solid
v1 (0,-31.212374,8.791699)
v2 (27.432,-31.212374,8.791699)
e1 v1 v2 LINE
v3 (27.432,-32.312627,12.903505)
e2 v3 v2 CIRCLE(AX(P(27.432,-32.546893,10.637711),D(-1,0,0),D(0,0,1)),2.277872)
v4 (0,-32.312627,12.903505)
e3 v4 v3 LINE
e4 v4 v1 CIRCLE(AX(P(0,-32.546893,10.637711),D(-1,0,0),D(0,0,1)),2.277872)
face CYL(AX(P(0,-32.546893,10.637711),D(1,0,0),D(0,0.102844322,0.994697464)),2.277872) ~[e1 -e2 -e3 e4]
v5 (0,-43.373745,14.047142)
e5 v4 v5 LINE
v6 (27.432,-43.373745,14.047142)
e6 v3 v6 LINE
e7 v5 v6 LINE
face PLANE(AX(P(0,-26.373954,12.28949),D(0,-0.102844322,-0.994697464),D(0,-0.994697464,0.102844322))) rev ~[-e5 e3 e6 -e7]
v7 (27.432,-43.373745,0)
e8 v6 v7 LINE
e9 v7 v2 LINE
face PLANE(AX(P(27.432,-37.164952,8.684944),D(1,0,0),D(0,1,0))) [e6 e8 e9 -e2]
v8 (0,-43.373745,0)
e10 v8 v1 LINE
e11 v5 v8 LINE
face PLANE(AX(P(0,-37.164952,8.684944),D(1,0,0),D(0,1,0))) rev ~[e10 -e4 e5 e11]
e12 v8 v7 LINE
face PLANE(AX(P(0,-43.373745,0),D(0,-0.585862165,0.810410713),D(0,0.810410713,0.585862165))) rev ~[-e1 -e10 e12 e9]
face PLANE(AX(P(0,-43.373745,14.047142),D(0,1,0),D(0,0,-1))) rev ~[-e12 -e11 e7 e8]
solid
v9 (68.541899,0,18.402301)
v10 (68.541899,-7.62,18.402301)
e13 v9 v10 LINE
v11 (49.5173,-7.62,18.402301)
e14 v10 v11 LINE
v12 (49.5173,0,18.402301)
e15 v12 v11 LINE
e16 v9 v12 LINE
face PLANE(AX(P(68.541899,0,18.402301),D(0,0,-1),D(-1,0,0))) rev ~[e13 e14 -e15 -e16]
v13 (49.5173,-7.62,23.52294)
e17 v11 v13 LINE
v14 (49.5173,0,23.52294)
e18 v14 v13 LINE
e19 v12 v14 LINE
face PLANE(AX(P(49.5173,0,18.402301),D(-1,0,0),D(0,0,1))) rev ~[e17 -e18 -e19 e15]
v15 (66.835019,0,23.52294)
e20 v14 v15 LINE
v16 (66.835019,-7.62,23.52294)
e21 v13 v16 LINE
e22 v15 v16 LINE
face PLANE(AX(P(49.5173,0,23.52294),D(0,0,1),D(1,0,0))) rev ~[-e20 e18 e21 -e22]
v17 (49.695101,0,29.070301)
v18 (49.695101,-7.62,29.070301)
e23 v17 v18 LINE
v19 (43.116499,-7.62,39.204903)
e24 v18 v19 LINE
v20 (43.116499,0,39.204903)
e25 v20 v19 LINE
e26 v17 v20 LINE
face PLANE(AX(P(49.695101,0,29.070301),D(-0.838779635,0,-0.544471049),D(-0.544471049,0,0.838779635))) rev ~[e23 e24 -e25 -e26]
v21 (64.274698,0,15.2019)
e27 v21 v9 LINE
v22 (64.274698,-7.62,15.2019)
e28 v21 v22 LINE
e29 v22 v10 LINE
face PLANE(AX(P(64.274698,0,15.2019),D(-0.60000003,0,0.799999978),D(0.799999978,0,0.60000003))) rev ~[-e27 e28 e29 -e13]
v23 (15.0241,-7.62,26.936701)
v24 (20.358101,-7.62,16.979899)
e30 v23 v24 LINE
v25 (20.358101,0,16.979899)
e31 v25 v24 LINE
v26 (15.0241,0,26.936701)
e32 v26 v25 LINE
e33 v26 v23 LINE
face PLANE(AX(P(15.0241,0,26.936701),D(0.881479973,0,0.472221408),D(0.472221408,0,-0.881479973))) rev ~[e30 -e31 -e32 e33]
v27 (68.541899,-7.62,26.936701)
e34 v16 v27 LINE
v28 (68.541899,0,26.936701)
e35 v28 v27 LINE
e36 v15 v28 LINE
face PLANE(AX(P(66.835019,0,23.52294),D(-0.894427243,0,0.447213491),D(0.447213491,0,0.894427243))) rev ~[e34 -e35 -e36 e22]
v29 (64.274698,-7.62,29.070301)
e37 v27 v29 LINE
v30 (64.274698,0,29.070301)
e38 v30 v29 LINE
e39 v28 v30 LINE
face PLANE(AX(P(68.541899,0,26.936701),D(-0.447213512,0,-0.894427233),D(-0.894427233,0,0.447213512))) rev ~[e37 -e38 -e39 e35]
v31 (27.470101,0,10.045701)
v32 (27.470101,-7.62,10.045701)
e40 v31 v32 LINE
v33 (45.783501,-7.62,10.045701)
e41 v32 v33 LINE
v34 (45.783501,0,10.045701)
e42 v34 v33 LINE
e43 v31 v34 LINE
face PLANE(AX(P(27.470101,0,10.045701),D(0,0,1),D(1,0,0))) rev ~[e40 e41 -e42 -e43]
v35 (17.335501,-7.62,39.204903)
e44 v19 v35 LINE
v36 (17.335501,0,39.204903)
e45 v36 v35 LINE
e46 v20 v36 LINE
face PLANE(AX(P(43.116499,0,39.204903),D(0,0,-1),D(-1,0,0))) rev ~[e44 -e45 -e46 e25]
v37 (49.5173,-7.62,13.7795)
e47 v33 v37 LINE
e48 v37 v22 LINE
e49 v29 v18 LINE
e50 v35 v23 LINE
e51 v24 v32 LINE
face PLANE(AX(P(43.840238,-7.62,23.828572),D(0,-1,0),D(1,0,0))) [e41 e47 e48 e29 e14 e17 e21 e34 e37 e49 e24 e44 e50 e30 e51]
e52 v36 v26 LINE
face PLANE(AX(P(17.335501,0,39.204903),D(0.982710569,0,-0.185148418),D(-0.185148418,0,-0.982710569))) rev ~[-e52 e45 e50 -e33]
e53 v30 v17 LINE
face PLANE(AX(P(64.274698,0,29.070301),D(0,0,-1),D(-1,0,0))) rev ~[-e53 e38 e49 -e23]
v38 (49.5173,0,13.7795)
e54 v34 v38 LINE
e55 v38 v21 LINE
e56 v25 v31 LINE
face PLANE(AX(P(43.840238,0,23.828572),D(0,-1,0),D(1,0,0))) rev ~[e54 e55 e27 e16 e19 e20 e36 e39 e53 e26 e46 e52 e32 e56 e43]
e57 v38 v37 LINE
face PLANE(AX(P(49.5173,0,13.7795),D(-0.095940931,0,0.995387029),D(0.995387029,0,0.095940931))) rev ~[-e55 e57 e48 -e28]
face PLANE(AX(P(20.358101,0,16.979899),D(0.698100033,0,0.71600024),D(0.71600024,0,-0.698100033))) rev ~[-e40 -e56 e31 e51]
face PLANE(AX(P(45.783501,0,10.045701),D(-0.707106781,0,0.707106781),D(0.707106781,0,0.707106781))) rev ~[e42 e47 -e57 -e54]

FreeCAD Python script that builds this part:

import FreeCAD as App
import Part
import Sketcher

V = App.Vector
Q = App.Units.Quantity


def edges_at(feature, points):
    """Names of the edges that pass closest to the given points."""
    edges = feature.Shape.Edges
    near = lambda p: min(range(len(edges)), key=lambda i: edges[i].distToShape(Part.Vertex(*p))[0])
    return sorted({f"Edge{near(p) + 1}" for p in points})

doc = App.newDocument("Part")
params = doc.addObject("Spreadsheet::Sheet", "Params")
for row, (alias, value) in enumerate([
    ("sketch1_length", "0.2100001 in"),
    ("sketch1_width", "1.0149999 in"),
    ("sketch1_width2", "0.721 in"),
    ("sketch1_width3", "0.749 in"),
    ("sketch1_width4", "0.5739999 in"),
    ("pad1_length", "0.3 in"),
    ("pad2_length", "1.08 in"),
    ("fillet_radius", "2.277872 mm"),
], start=1):
    params.set(f"A{row}", alias)
    params.set(f"B{row}", "=" + value)
    params.setAlias(f"B{row}", alias)

body = doc.addObject("PartDesign::Body", "Body")

# Sketch on XZ plane
sketch1 = body.newObject("Sketcher::SketchObject", "Sketch")
sketch1.AttachmentSupport = (doc.getObject("XZ_Plane"), [""])
sketch1.MapMode = "FlatFace"
sketch1.addGeometry([
    Part.LineSegment(V(43.116499, 39.204903, 0), V(17.335501, 39.204903, 0)),  # 0
    Part.LineSegment(V(17.335501, 39.204903, 0), V(15.0241, 26.936701, 0)),  # 1
    Part.LineSegment(V(15.0241, 26.936701, 0), V(20.358101, 16.979899, 0)),  # 2
    Part.LineSegment(V(20.358101, 16.979899, 0), V(27.470101, 10.045701, 0)),  # 3
    Part.LineSegment(V(27.470101, 10.045701, 0), V(45.783501, 10.045701, 0)),  # 4
    Part.LineSegment(V(45.783501, 10.045701, 0), V(49.5173, 13.7795, 0)),  # 5
    Part.LineSegment(V(49.5173, 13.7795, 0), V(64.274698, 15.2019, 0)),  # 6
    Part.LineSegment(V(64.274698, 15.2019, 0), V(68.541899, 18.402301, 0)),  # 7
    Part.LineSegment(V(68.541899, 18.402301, 0), V(49.5173, 18.402301, 0)),  # 8
    Part.LineSegment(V(49.5173, 18.402301, 0), V(49.5173, 23.52294, 0)),  # 9
    Part.LineSegment(V(49.5173, 23.52294, 0), V(66.835019, 23.52294, 0)),  # 10
    Part.LineSegment(V(66.835019, 23.52294, 0), V(68.541899, 26.936701, 0)),  # 11
    Part.LineSegment(V(68.541899, 26.936701, 0), V(64.274698, 29.070301, 0)),  # 12
    Part.LineSegment(V(64.274698, 29.070301, 0), V(49.695101, 29.070301, 0)),  # 13
    Part.LineSegment(V(49.695101, 29.070301, 0), V(43.116499, 39.204903, 0)),  # 14
], False)
sketch1.addConstraint([
    Sketcher.Constraint("Coincident", 0, 2, 1, 1),
    Sketcher.Constraint("Coincident", 1, 2, 2, 1),
    Sketcher.Constraint("Coincident", 2, 2, 3, 1),
    Sketcher.Constraint("Coincident", 3, 2, 4, 1),
    Sketcher.Constraint("Coincident", 4, 2, 5, 1),
    Sketcher.Constraint("Coincident", 5, 2, 6, 1),
    Sketcher.Constraint("Coincident", 6, 2, 7, 1),
    Sketcher.Constraint("Coincident", 7, 2, 8, 1),
    Sketcher.Constraint("Coincident", 8, 2, 9, 1),
    Sketcher.Constraint("Coincident", 9, 2, 10, 1),
    Sketcher.Constraint("Coincident", 10, 2, 11, 1),
    Sketcher.Constraint("Coincident", 11, 2, 12, 1),
    Sketcher.Constraint("Coincident", 12, 2, 13, 1),
    Sketcher.Constraint("Coincident", 13, 2, 14, 1),
    Sketcher.Constraint("Coincident", 14, 2, 0, 1),
    Sketcher.Constraint("Horizontal", 0),
    Sketcher.Constraint("Horizontal", 4),
    Sketcher.Constraint("Horizontal", 8),
    Sketcher.Constraint("Vertical", 9),
    Sketcher.Constraint("Horizontal", 10),
    Sketcher.Constraint("Horizontal", 13),
    Sketcher.Constraint("Perpendicular", 11, 12),
    Sketcher.Constraint("Horizontal", 1, 2, 11, 2),
    Sketcher.Constraint("Vertical", 5, 2, 8, 2),
    Sketcher.Constraint("Vertical", 7, 2, 11, 2),
    Sketcher.Constraint("Vertical", 6, 2, 12, 2),
    Sketcher.Constraint("Angle", 5, Q("45 deg")),
    Sketcher.Constraint("Distance", 7, Q("0.2100001 in")),
    Sketcher.Constraint("DistanceX", 0, 2, 0, 1, Q("1.0149999 in")),
    Sketcher.Constraint("DistanceX", 4, 1, 4, 2, Q("0.721 in")),
    Sketcher.Constraint("DistanceX", 8, 2, 8, 1, Q("0.749 in")),
    Sketcher.Constraint("DistanceX", 13, 2, 13, 1, Q("0.5739999 in")),
    Sketcher.Constraint("DistanceX", 1, 2, 2, 2, Q("0.21 in")),
    Sketcher.Constraint("DistanceX", 2, 2, 3, 2, Q("0.28 in")),
    Sketcher.Constraint("DistanceX", 0, 2, 4, 2, Q("1.12 in")),
    Sketcher.Constraint("DistanceY", 6, 2, 2, 2, Q("0.07 in")),
    Sketcher.Constraint("DistanceY", 7, 2, 12, 2, Q("0.42 in")),
    Sketcher.Constraint("DistanceX", 10, 1, 10, 2, Q("0.6818 in")),
    Sketcher.Constraint("DistanceY", 9, 1, 9, 2, Q("0.2016 in")),
    Sketcher.Constraint("DistanceY", 1, 2, 0, 2, Q("0.4830001 in")),
    Sketcher.Constraint("DistanceY", 2, 2, 1, 2, Q("0.3920001 in")),
    Sketcher.Constraint("DistanceY", 3, 2, 2, 2, Q("0.2729999 in")),
    Sketcher.Constraint("DistanceX", 4, 2, 5, 2, Q("0.147 in")),
    Sketcher.Constraint("DistanceX", -1, 1, 0, 2, Q("0.6825 in")),
    Sketcher.Constraint("DistanceY", -1, 1, 0, 2, Q("1.5435001 in")),
])
sketch1.setExpression("Constraints[27]", "Params.sketch1_length")
sketch1.setExpression("Constraints[28]", "Params.sketch1_width")
sketch1.setExpression("Constraints[29]", "Params.sketch1_width2")
sketch1.setExpression("Constraints[30]", "Params.sketch1_width3")
sketch1.setExpression("Constraints[31]", "Params.sketch1_width4")
pad1 = body.newObject("PartDesign::Pad", "Pad")
pad1.Profile = sketch1
pad1.setExpression("Length", "Params.pad1_length")
body2 = doc.addObject("PartDesign::Body", "Body001")

# Sketch on YZ plane
sketch2 = body2.newObject("Sketcher::SketchObject", "Sketch001")
sketch2.AttachmentSupport = (doc.getObject("YZ_Plane001"), [""])
sketch2.MapMode = "FlatFace"
sketch2.addGeometry([
    Part.LineSegment(V(-26.373954, 12.28949, 0), V(-43.373745, 14.047142, 0)),
    Part.LineSegment(V(-43.373745, 14.047142, 0), V(-43.373745, 0, 0)),
    Part.LineSegment(V(-43.373745, 0, 0), V(-26.373954, 12.28949, 0)),
], False)
sketch2.addConstraint([
    Sketcher.Constraint("Coincident", 0, 2, 1, 1),
    Sketcher.Constraint("Coincident", 1, 2, 2, 1),
    Sketcher.Constraint("Coincident", 2, 2, 0, 1),
    Sketcher.Constraint("Vertical", 1),
    Sketcher.Constraint("PointOnObject", 1, 2, -1),
    Sketcher.Constraint("DistanceY", 1, 2, 1, 1, 14.047142),
    Sketcher.Constraint("Distance", 2, 20.97676),
    Sketcher.Constraint("DistanceY", -1, 1, 2, 2, 12.28949),
    Sketcher.Constraint("DistanceX", 0, 2, -1, 1, 43.373745),
])
pad2 = body2.newObject("PartDesign::Pad", "Pad001")
pad2.Profile = sketch2
pad2.setExpression("Length", "Params.pad2_length")
doc.recompute()

fillet = body2.newObject("PartDesign::Fillet", "Fillet")
fillet.Base = (pad2, edges_at(pad2, [(13.716, -26.374, 12.289)]))
fillet.setExpression("Radius", "Params.fillet_radius")

doc.recompute()
